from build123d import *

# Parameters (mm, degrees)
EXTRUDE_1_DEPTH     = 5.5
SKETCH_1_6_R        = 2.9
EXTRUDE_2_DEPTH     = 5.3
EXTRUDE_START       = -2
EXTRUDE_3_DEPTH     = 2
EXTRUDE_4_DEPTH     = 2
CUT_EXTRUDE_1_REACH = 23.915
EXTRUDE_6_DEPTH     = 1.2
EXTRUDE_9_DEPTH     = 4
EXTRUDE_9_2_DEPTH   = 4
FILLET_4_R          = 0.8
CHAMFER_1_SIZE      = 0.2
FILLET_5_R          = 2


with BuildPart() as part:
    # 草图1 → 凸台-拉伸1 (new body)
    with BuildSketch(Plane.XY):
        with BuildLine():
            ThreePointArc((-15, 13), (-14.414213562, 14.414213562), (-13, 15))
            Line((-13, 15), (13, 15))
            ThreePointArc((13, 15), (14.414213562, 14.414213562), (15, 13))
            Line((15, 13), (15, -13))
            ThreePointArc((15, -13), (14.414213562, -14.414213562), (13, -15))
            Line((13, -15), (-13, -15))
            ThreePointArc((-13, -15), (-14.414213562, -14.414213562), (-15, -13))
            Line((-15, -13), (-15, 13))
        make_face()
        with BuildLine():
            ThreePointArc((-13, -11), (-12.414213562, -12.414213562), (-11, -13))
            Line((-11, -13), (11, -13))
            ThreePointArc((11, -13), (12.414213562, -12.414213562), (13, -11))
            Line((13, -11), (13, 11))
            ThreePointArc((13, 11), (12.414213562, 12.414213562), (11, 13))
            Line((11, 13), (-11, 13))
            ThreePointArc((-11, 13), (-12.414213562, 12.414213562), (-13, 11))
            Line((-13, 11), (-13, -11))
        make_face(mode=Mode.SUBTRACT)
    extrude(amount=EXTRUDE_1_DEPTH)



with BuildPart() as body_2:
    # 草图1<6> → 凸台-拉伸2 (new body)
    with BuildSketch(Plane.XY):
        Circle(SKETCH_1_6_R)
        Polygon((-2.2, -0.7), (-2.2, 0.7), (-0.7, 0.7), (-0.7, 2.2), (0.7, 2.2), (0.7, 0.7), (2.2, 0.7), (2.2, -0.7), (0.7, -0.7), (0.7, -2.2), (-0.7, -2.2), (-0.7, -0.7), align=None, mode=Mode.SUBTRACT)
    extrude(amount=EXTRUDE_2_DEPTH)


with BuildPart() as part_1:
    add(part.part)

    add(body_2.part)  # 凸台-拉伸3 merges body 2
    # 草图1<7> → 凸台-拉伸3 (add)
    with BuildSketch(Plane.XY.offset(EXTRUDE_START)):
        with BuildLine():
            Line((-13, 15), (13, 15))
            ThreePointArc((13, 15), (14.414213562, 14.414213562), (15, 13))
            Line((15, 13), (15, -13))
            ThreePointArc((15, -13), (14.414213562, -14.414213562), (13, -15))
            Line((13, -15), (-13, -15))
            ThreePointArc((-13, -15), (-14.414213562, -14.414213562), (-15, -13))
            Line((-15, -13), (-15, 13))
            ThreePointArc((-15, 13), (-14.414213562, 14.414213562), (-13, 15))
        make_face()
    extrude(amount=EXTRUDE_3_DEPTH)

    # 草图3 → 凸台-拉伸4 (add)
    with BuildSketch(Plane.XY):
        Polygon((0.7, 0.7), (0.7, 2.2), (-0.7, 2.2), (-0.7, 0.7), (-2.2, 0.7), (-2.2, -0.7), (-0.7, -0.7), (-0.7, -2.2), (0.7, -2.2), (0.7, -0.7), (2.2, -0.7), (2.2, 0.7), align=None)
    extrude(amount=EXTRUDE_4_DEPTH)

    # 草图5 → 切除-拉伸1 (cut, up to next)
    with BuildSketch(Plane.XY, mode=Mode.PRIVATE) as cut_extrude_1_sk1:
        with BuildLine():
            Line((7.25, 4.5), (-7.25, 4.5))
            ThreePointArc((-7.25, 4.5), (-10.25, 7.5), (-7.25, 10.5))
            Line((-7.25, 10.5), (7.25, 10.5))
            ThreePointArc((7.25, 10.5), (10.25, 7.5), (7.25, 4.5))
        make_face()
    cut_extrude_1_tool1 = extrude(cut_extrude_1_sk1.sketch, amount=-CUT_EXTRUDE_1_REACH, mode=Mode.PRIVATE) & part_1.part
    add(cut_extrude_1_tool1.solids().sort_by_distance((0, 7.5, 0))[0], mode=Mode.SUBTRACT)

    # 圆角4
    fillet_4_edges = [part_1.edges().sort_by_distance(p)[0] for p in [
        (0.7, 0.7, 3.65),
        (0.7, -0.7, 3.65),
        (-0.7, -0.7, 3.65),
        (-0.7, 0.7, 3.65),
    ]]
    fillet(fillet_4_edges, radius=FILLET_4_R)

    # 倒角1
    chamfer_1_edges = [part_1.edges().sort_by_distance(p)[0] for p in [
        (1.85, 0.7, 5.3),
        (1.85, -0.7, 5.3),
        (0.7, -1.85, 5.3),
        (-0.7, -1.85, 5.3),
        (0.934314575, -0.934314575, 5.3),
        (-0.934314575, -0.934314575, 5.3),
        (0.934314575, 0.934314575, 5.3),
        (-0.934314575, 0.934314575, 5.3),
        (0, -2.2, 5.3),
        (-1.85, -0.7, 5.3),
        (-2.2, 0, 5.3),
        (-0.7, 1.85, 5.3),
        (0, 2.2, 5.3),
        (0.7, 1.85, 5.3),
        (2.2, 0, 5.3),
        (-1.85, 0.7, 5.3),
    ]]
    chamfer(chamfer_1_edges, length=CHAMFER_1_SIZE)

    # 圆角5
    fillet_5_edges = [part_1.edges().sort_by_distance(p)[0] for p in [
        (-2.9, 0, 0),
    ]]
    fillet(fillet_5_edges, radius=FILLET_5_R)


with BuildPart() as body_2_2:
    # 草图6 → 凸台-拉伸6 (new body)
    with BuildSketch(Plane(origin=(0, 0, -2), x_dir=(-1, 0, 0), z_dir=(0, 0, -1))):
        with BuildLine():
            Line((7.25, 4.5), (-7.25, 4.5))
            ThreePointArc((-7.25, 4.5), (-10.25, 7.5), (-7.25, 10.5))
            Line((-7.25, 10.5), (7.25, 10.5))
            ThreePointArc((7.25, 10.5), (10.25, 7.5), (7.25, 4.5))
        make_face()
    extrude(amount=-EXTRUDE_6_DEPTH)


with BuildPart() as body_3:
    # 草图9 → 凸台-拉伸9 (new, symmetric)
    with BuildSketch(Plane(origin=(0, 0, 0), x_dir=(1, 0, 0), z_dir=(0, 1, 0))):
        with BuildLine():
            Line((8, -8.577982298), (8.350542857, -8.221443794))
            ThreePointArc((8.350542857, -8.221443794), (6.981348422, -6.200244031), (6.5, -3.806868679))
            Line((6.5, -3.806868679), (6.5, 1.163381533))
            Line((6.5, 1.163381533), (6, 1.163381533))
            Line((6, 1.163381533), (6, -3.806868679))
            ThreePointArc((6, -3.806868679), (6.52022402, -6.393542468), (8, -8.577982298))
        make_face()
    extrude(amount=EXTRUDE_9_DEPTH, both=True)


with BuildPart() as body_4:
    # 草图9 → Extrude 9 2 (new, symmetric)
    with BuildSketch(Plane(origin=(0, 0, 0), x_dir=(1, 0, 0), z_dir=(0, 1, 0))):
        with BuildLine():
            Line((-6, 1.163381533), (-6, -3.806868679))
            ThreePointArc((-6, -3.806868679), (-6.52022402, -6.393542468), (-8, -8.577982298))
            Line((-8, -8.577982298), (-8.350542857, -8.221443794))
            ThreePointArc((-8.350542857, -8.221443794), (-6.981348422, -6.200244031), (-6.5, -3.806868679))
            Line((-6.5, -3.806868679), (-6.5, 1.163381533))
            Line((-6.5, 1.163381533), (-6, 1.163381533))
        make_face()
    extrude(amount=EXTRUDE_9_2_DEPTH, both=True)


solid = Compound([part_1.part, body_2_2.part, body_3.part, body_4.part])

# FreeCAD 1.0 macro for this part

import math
import FreeCAD as App
import Part
import Sketcher

V = App.Vector
Q = App.Units.Quantity


def edges_at(feature, points):
    """Names of the edges that pass closest to the given points."""
    edges = feature.Shape.Edges
    near = lambda p: min(range(len(edges)), key=lambda i: edges[i].distToShape(Part.Vertex(*p))[0])
    return sorted({f"Edge{near(p) + 1}" for p in points})

doc = App.newDocument("Part")
body = doc.addObject("PartDesign::Body", "Body")

# Sketch on XY plane
sketch1 = body.newObject("Sketcher::SketchObject", "Sketch")
sketch1.AttachmentSupport = (doc.getObject("XY_Plane"), [""])
sketch1.MapMode = "FlatFace"
sketch1.addGeometry(Part.ArcOfCircle(Part.Circle(V(-13, 13, 0), V(0, 0, 1), 2), math.radians(90), math.radians(180)), False)
sketch1.addGeometry(Part.LineSegment(V(-15, 13, 0), V(-15, -13, 0)), False)
sketch1.addGeometry(Part.ArcOfCircle(Part.Circle(V(-13, -13, 0), V(0, 0, 1), 2), math.radians(-180), math.radians(-90)), False)
sketch1.addGeometry(Part.LineSegment(V(-13, -15, 0), V(13, -15, 0)), False)
sketch1.addGeometry(Part.ArcOfCircle(Part.Circle(V(13, -13, 0), V(0, 0, 1), 2), math.radians(-90), math.radians(0)), False)
sketch1.addGeometry(Part.LineSegment(V(15, -13, 0), V(15, 13, 0)), False)
sketch1.addGeometry(Part.ArcOfCircle(Part.Circle(V(13, 13, 0), V(0, 0, 1), 2), math.radians(0), math.radians(90)), False)
sketch1.addGeometry(Part.LineSegment(V(13, 15, 0), V(-13, 15, 0)), False)
sketch1.addGeometry(Part.LineSegment(V(-13, -11, 0), V(-13, 11, 0)), False)
sketch1.addGeometry(Part.ArcOfCircle(Part.Circle(V(-11, 11, 0), V(0, 0, 1), 2), math.radians(90), math.radians(180)), False)
sketch1.addGeometry(Part.LineSegment(V(-11, 13, 0), V(11, 13, 0)), False)
sketch1.addGeometry(Part.ArcOfCircle(Part.Circle(V(11, 11, 0), V(0, 0, 1), 2), math.radians(0), math.radians(90)), False)
sketch1.addGeometry(Part.LineSegment(V(13, 11, 0), V(13, -11, 0)), False)
sketch1.addGeometry(Part.ArcOfCircle(Part.Circle(V(11, -11, 0), V(0, 0, 1), 2), math.radians(-90), math.radians(0)), False)
sketch1.addGeometry(Part.LineSegment(V(11, -13, 0), V(-11, -13, 0)), False)
sketch1.addGeometry(Part.ArcOfCircle(Part.Circle(V(-11, -11, 0), V(0, 0, 1), 2), math.radians(-180), math.radians(-90)), False)
sketch1.addConstraint(Sketcher.Constraint("Tangent", 0, 2, 1, 1))
sketch1.addConstraint(Sketcher.Constraint("Tangent", 1, 2, 2, 1))
sketch1.addConstraint(Sketcher.Constraint("Tangent", 2, 2, 3, 1))
sketch1.addConstraint(Sketcher.Constraint("Tangent", 3, 2, 4, 1))
sketch1.addConstraint(Sketcher.Constraint("Tangent", 4, 2, 5, 1))
sketch1.addConstraint(Sketcher.Constraint("Tangent", 5, 2, 6, 1))
sketch1.addConstraint(Sketcher.Constraint("Tangent", 6, 2, 7, 1))
sketch1.addConstraint(Sketcher.Constraint("Tangent", 7, 2, 0, 1))
sketch1.addConstraint(Sketcher.Constraint("Tangent", 8, 2, 9, 2))
sketch1.addConstraint(Sketcher.Constraint("Tangent", 9, 1, 10, 1))
sketch1.addConstraint(Sketcher.Constraint("Tangent", 10, 2, 11, 2))
sketch1.addConstraint(Sketcher.Constraint("Tangent", 11, 1, 12, 1))
sketch1.addConstraint(Sketcher.Constraint("Tangent", 12, 2, 13, 2))
sketch1.addConstraint(Sketcher.Constraint("Tangent", 13, 1, 14, 1))
sketch1.addConstraint(Sketcher.Constraint("Tangent", 14, 2, 15, 2))
sketch1.addConstraint(Sketcher.Constraint("Tangent", 15, 1, 8, 1))
sketch1.addConstraint(Sketcher.Constraint("Vertical", 1))
sketch1.addConstraint(Sketcher.Constraint("Horizontal", 3))
sketch1.addConstraint(Sketcher.Constraint("Vertical", 5))
sketch1.addConstraint(Sketcher.Constraint("Horizontal", 7))
sketch1.addConstraint(Sketcher.Constraint("Vertical", 8))
sketch1.addConstraint(Sketcher.Constraint("Horizontal", 10))
sketch1.addConstraint(Sketcher.Constraint("Vertical", 12))
sketch1.addConstraint(Sketcher.Constraint("Horizontal", 14))
sketch1.addConstraint(Sketcher.Constraint("Equal", 0, 2))
sketch1.addConstraint(Sketcher.Constraint("Equal", 2, 4))
sketch1.addConstraint(Sketcher.Constraint("Equal", 4, 6))
sketch1.addConstraint(Sketcher.Constraint("Equal", 6, 9))
sketch1.addConstraint(Sketcher.Constraint("Equal", 9, 11))
sketch1.addConstraint(Sketcher.Constraint("Equal", 11, 13))
sketch1.addConstraint(Sketcher.Constraint("Equal", 13, 15))
sketch1.addConstraint(Sketcher.Constraint("Symmetric", 0, 3, 4, 3, -1, 1))
sketch1.addConstraint(Sketcher.Constraint("Symmetric", 9, 3, 13, 3, -1, 1))
sketch1.addConstraint(Sketcher.Constraint("Horizontal", 5, 2, 9, 1))
sketch1.addConstraint(Sketcher.Constraint("Vertical", 7, 2, 8, 2))
sketch1.addConstraint(Sketcher.Constraint("Equal", 7, 1))
sketch1.addConstraint(Sketcher.Constraint("Radius", 0, Q("2 mm")))
sketch1.addConstraint(Sketcher.Constraint("DistanceX", 3, 1, 3, 2, Q("26 mm")))
pad1 = body.newObject("PartDesign::Pad", "Pad")
pad1.Profile = sketch1
pad1.Length = 5.5
body2 = doc.addObject("PartDesign::Body", "Body001")

# Sketch on XY plane
sketch2 = body2.newObject("Sketcher::SketchObject", "Sketch001")
sketch2.AttachmentSupport = (doc.getObject("XY_Plane001"), [""])
sketch2.MapMode = "FlatFace"
sketch2.addGeometry(Part.Circle(V(0, 0, 0), V(0, 0, 1), 2.9), False)
sketch2.addGeometry(Part.LineSegment(V(-0.7, -0.7, 0), V(-2.2, -0.7, 0)), False)
sketch2.addGeometry(Part.LineSegment(V(-2.2, -0.7, 0), V(-2.2, 0.7, 0)), False)
sketch2.addGeometry(Part.LineSegment(V(-2.2, 0.7, 0), V(-0.7, 0.7, 0)), False)
sketch2.addGeometry(Part.LineSegment(V(-0.7, 0.7, 0), V(-0.7, 2.2, 0)), False)
sketch2.addGeometry(Part.LineSegment(V(-0.7, 2.2, 0), V(0.7, 2.2, 0)), False)
sketch2.addGeometry(Part.LineSegment(V(0.7, 2.2, 0), V(0.7, 0.7, 0)), False)
sketch2.addGeometry(Part.LineSegment(V(0.7, 0.7, 0), V(2.2, 0.7, 0)), False)
sketch2.addGeometry(Part.LineSegment(V(2.2, 0.7, 0), V(2.2, -0.7, 0)), False)
sketch2.addGeometry(Part.LineSegment(V(2.2, -0.7, 0), V(0.7, -0.7, 0)), False)
sketch2.addGeometry(Part.LineSegment(V(0.7, -0.7, 0), V(0.7, -2.2, 0)), False)
sketch2.addGeometry(Part.LineSegment(V(0.7, -2.2, 0), V(-0.7, -2.2, 0)), False)
sketch2.addGeometry(Part.LineSegment(V(-0.7, -2.2, 0), V(-0.7, -0.7, 0)), False)
sketch2.addConstraint(Sketcher.Constraint("Coincident", 1, 2, 2, 1))
sketch2.addConstraint(Sketcher.Constraint("Coincident", 2, 2, 3, 1))
sketch2.addConstraint(Sketcher.Constraint("Coincident", 3, 2, 4, 1))
sketch2.addConstraint(Sketcher.Constraint("Coincident", 4, 2, 5, 1))
sketch2.addConstraint(Sketcher.Constraint("Coincident", 5, 2, 6, 1))
sketch2.addConstraint(Sketcher.Constraint("Coincident", 6, 2, 7, 1))
sketch2.addConstraint(Sketcher.Constraint("Coincident", 7, 2, 8, 1))
sketch2.addConstraint(Sketcher.Constraint("Coincident", 8, 2, 9, 1))
sketch2.addConstraint(Sketcher.Constraint("Coincident", 9, 2, 10, 1))
sketch2.addConstraint(Sketcher.Constraint("Coincident", 10, 2, 11, 1))
sketch2.addConstraint(Sketcher.Constraint("Coincident", 11, 2, 12, 1))
sketch2.addConstraint(Sketcher.Constraint("Coincident", 12, 2, 1, 1))
sketch2.addConstraint(Sketcher.Constraint("Horizontal", 1))
sketch2.addConstraint(Sketcher.Constraint("Vertical", 2))
sketch2.addConstraint(Sketcher.Constraint("Horizontal", 3))
sketch2.addConstraint(Sketcher.Constraint("Vertical", 4))
sketch2.addConstraint(Sketcher.Constraint("Horizontal", 5))
sketch2.addConstraint(Sketcher.Constraint("Vertical", 6))
sketch2.addConstraint(Sketcher.Constraint("Horizontal", 7))
sketch2.addConstraint(Sketcher.Constraint("Vertical", 8))
sketch2.addConstraint(Sketcher.Constraint("Horizontal", 9))
sketch2.addConstraint(Sketcher.Constraint("Vertical", 10))
sketch2.addConstraint(Sketcher.Constraint("Horizontal", 11))
sketch2.addConstraint(Sketcher.Constraint("Vertical", 12))
sketch2.addConstraint(Sketcher.Constraint("Coincident", 0, 3, -1, 1))
sketch2.addConstraint(Sketcher.Constraint("Symmetric", 1, 2, 7, 2, -1, 1))
sketch2.addConstraint(Sketcher.Constraint("Symmetric", 3, 2, 9, 2, -1, 1))
sketch2.addConstraint(Sketcher.Constraint("Symmetric", 5, 2, 11, 2, -1, 1))
sketch2.addConstraint(Sketcher.Constraint("Symmetric", 3, 2, 6, 2, -2))
sketch2.addConstraint(Sketcher.Constraint("Equal", 11, 2))
sketch2.addConstraint(Sketcher.Constraint("Equal", 9, 4))
sketch2.addConstraint(Sketcher.Constraint("Diameter", 0, Q("5.8 mm")))
sketch2.addConstraint(Sketcher.Constraint("DistanceX", 1, 2, 1, 1, Q("1.5 mm")))
sketch2.addConstraint(Sketcher.Constraint("DistanceX", 5, 1, 5, 2, Q("1.4 mm")))
pad2 = body2.newObject("PartDesign::Pad", "Pad001")
pad2.Profile = sketch2
pad2.Length = 5.3
body.AllowCompound = True
doc.recompute()

boolean = body.newObject("PartDesign::Boolean", "Boolean")
boolean.Type = "Fuse"
boolean.addObjects([body2])

# Sketch on XY plane
sketch3 = body.newObject("Sketcher::SketchObject", "Sketch002")
sketch3.AttachmentSupport = (doc.getObject("XY_Plane"), [""])
sketch3.MapMode = "FlatFace"
sketch3.AttachmentOffset = App.Placement(V(0, 0, -2), App.Rotation())
sketch3.addGeometry(Part.LineSegment(V(13, 15, 0), V(-13, 15, 0)), False)
sketch3.addGeometry(Part.ArcOfCircle(Part.Circle(V(-13, 13, 0), V(0, 0, 1), 2), math.radians(90), math.radians(180)), False)
sketch3.addGeometry(Part.LineSegment(V(-15, 13, 0), V(-15, -13, 0)), False)
sketch3.addGeometry(Part.ArcOfCircle(Part.Circle(V(-13, -13, 0), V(0, 0, 1), 2), math.radians(-180), math.radians(-90)), False)
sketch3.addGeometry(Part.LineSegment(V(-13, -15, 0), V(13, -15, 0)), False)
sketch3.addGeometry(Part.ArcOfCircle(Part.Circle(V(13, -13, 0), V(0, 0, 1), 2), math.radians(-90), math.radians(0)), False)
sketch3.addGeometry(Part.LineSegment(V(15, -13, 0), V(15, 13, 0)), False)
sketch3.addGeometry(Part.ArcOfCircle(Part.Circle(V(13, 13, 0), V(0, 0, 1), 2), math.radians(0), math.radians(90)), False)
sketch3.addConstraint(Sketcher.Constraint("Tangent", 0, 2, 1, 1))
sketch3.addConstraint(Sketcher.Constraint("Tangent", 1, 2, 2, 1))
sketch3.addConstraint(Sketcher.Constraint("Tangent", 2, 2, 3, 1))
sketch3.addConstraint(Sketcher.Constraint("Tangent", 3, 2, 4, 1))
sketch3.addConstraint(Sketcher.Constraint("Tangent", 4, 2, 5, 1))
sketch3.addConstraint(Sketcher.Constraint("Tangent", 5, 2, 6, 1))
sketch3.addConstraint(Sketcher.Constraint("Tangent", 6, 2, 7, 1))
sketch3.addConstraint(Sketcher.Constraint("Tangent", 7, 2, 0, 1))
sketch3.addConstraint(Sketcher.Constraint("Horizontal", 0))
sketch3.addConstraint(Sketcher.Constraint("Vertical", 2))
sketch3.addConstraint(Sketcher.Constraint("Horizontal", 4))
sketch3.addConstraint(Sketcher.Constraint("Vertical", 6))
sketch3.addConstraint(Sketcher.Constraint("Equal", 1, 3))
sketch3.addConstraint(Sketcher.Constraint("Equal", 3, 5))
sketch3.addConstraint(Sketcher.Constraint("Equal", 5, 7))
sketch3.addConstraint(Sketcher.Constraint("Symmetric", 1, 3, 5, 3, -1, 1))
sketch3.addConstraint(Sketcher.Constraint("Equal", 4, 2))
sketch3.addConstraint(Sketcher.Constraint("Radius", 1, Q("2 mm")))
sketch3.addConstraint(Sketcher.Constraint("DistanceX", 0, 2, 0, 1, Q("26 mm")))
pad3 = body.newObject("PartDesign::Pad", "Pad002")
pad3.Profile = sketch3
pad3.Length = 2

# Sketch on XY plane
sketch4 = body.newObject("Sketcher::SketchObject", "Sketch003")
sketch4.AttachmentSupport = (doc.getObject("XY_Plane"), [""])
sketch4.MapMode = "FlatFace"
sketch4.addGeometry(Part.LineSegment(V(0.7, 0.7, 0), V(0.7, 2.2, 0)), False)
sketch4.addGeometry(Part.LineSegment(V(0.7, 2.2, 0), V(-0.7, 2.2, 0)), False)
sketch4.addGeometry(Part.LineSegment(V(-0.7, 2.2, 0), V(-0.7, 0.7, 0)), False)
sketch4.addGeometry(Part.LineSegment(V(-0.7, 0.7, 0), V(-2.2, 0.7, 0)), False)
sketch4.addGeometry(Part.LineSegment(V(-2.2, 0.7, 0), V(-2.2, -0.7, 0)), False)
sketch4.addGeometry(Part.LineSegment(V(-2.2, -0.7, 0), V(-0.7, -0.7, 0)), False)
sketch4.addGeometry(Part.LineSegment(V(-0.7, -0.7, 0), V(-0.7, -2.2, 0)), False)
sketch4.addGeometry(Part.LineSegment(V(-0.7, -2.2, 0), V(0.7, -2.2, 0)), False)
sketch4.addGeometry(Part.LineSegment(V(0.7, -2.2, 0), V(0.7, -0.7, 0)), False)
sketch4.addGeometry(Part.LineSegment(V(0.7, -0.7, 0), V(2.2, -0.7, 0)), False)
sketch4.addGeometry(Part.LineSegment(V(2.2, -0.7, 0), V(2.2, 0.7, 0)), False)
sketch4.addGeometry(Part.LineSegment(V(2.2, 0.7, 0), V(0.7, 0.7, 0)), False)
sketch4.addConstraint(Sketcher.Constraint("Coincident", 0, 2, 1, 1))
sketch4.addConstraint(Sketcher.Constraint("Coincident", 1, 2, 2, 1))
sketch4.addConstraint(Sketcher.Constraint("Coincident", 2, 2, 3, 1))
sketch4.addConstraint(Sketcher.Constraint("Coincident", 3, 2, 4, 1))
sketch4.addConstraint(Sketcher.Constraint("Coincident", 4, 2, 5, 1))
sketch4.addConstraint(Sketcher.Constraint("Coincident", 5, 2, 6, 1))
sketch4.addConstraint(Sketcher.Constraint("Coincident", 6, 2, 7, 1))
sketch4.addConstraint(Sketcher.Constraint("Coincident", 7, 2, 8, 1))
sketch4.addConstraint(Sketcher.Constraint("Coincident", 8, 2, 9, 1))
sketch4.addConstraint(Sketcher.Constraint("Coincident", 9, 2, 10, 1))
sketch4.addConstraint(Sketcher.Constraint("Coincident", 10, 2, 11, 1))
sketch4.addConstraint(Sketcher.Constraint("Coincident", 11, 2, 0, 1))
sketch4.addConstraint(Sketcher.Constraint("Vertical", 0))
sketch4.addConstraint(Sketcher.Constraint("Horizontal", 1))
sketch4.addConstraint(Sketcher.Constraint("Vertical", 2))
sketch4.addConstraint(Sketcher.Constraint("Horizontal", 3))
sketch4.addConstraint(Sketcher.Constraint("Vertical", 4))
sketch4.addConstraint(Sketcher.Constraint("Horizontal", 5))
sketch4.addConstraint(Sketcher.Constraint("Vertical", 6))
sketch4.addConstraint(Sketcher.Constraint("Horizontal", 7))
sketch4.addConstraint(Sketcher.Constraint("Vertical", 8))
sketch4.addConstraint(Sketcher.Constraint("Horizontal", 9))
sketch4.addConstraint(Sketcher.Constraint("Vertical", 10))
sketch4.addConstraint(Sketcher.Constraint("Horizontal", 11))
sketch4.addConstraint(Sketcher.Constraint("Symmetric", 0, 2, 6, 2, -1, 1))
sketch4.addConstraint(Sketcher.Constraint("Symmetric", 2, 2, 8, 2, -1, 1))
sketch4.addConstraint(Sketcher.Constraint("Symmetric", 4, 2, 10, 2, -1, 1))
sketch4.addConstraint(Sketcher.Constraint("Symmetric", 5, 2, 8, 2, -2))
sketch4.addConstraint(Sketcher.Constraint("Equal", 11, 0))
sketch4.addConstraint(Sketcher.Constraint("Equal", 7, 4))
sketch4.addConstraint(Sketcher.Constraint("DistanceX", 1, 2, 1, 1, Q("1.4 mm")))
sketch4.addConstraint(Sketcher.Constraint("DistanceX", 3, 2, 3, 1, Q("1.5 mm")))
pad4 = body.newObject("PartDesign::Pad", "Pad003")
pad4.Profile = sketch4
pad4.Length = 2

# Sketch on XY plane
sketch5 = body.newObject("Sketcher::SketchObject", "Sketch004")
sketch5.AttachmentSupport = (doc.getObject("XY_Plane"), [""])
sketch5.MapMode = "FlatFace"
sketch5.addGeometry(Part.LineSegment(V(-7.25, 4.5, 0), V(7.25, 4.5, 0)), False)
sketch5.addGeometry(Part.ArcOfCircle(Part.Circle(V(7.25, 7.5, 0), V(0, 0, 1), 3), math.radians(-90), math.radians(90)), False)
sketch5.addGeometry(Part.LineSegment(V(7.25, 10.5, 0), V(-7.25, 10.5, 0)), False)
sketch5.addGeometry(Part.ArcOfCircle(Part.Circle(V(-7.25, 7.5, 0), V(0, 0, 1), 3), math.radians(90), math.radians(270)), False)
sketch5.addConstraint(Sketcher.Constraint("Tangent", 0, 2, 1, 1))
sketch5.addConstraint(Sketcher.Constraint("Tangent", 1, 2, 2, 1))
sketch5.addConstraint(Sketcher.Constraint("Tangent", 2, 2, 3, 1))
sketch5.addConstraint(Sketcher.Constraint("Tangent", 3, 2, 0, 1))
sketch5.addConstraint(Sketcher.Constraint("Horizontal", 0))
sketch5.addConstraint(Sketcher.Constraint("Horizontal", 2))
sketch5.addConstraint(Sketcher.Constraint("Radius", 1, Q("3 mm")))
sketch5.addConstraint(Sketcher.Constraint("DistanceX", 0, 1, 0, 2, Q("14.5 mm")))
sketch5.addConstraint(Sketcher.Constraint("DistanceY", -1, 1, 1, 3, Q("7.5 mm")))
sketch5.addConstraint(Sketcher.Constraint("DistanceX", -1, 1, 1, 3, Q("7.25 mm")))
pocket1 = body.newObject("PartDesign::Pocket", "Pocket")
pocket1.Profile = sketch5
pocket1.Type = "UpToFirst"
doc.recompute()

fillet = body.newObject("PartDesign::Fillet", "Fillet")
fillet.Base = (pocket1, edges_at(pocket1, [
    (0.7, 0.7, 3.65),
    (0.7, -0.7, 3.65),
    (-0.7, -0.7, 3.65),
    (-0.7, 0.7, 3.65),
]))
fillet.Radius = 0.8
doc.recompute()

chamfer = body.newObject("PartDesign::Chamfer", "Chamfer")
chamfer.Base = (fillet, edges_at(fillet, [
    (1.85, 0.7, 5.3),
    (1.85, -0.7, 5.3),
    (0.7, -1.85, 5.3),
    (-0.7, -1.85, 5.3),
    (0.934, -0.934, 5.3),
    (-0.934, -0.934, 5.3),
    (0.934, 0.934, 5.3),
    (-0.934, 0.934, 5.3),
    (0, -2.2, 5.3),
    (-1.85, -0.7, 5.3),
    (-2.2, 0, 5.3),
    (-0.7, 1.85, 5.3),
    (0, 2.2, 5.3),
    (0.7, 1.85, 5.3),
    (2.2, 0, 5.3),
    (-1.85, 0.7, 5.3),
]))
chamfer.Size = 0.2
doc.recompute()

fillet2 = body.newObject("PartDesign::Fillet", "Fillet001")
fillet2.Base = (chamfer, edges_at(chamfer, [(-2.9, 0, 0)]))
fillet2.Radius = 2
body3 = doc.addObject("PartDesign::Body", "Body002")

# Sketch on XY plane
sketch6 = body3.newObject("Sketcher::SketchObject", "Sketch005")
sketch6.AttachmentSupport = (doc.getObject("XY_Plane002"), [""])
sketch6.MapMode = "FlatFace"
sketch6.AttachmentOffset = App.Placement(V(0, 0, -2), App.Rotation())
sketch6.addGeometry(Part.LineSegment(V(7.25, 4.5, 0), V(-7.25, 4.5, 0)), False)
sketch6.addGeometry(Part.ArcOfCircle(Part.Circle(V(-7.25, 7.5, 0), V(0, 0, 1), 3), math.radians(90), math.radians(270)), False)
sketch6.addGeometry(Part.LineSegment(V(-7.25, 10.5, 0), V(7.25, 10.5, 0)), False)
sketch6.addGeometry(Part.ArcOfCircle(Part.Circle(V(7.25, 7.5, 0), V(0, 0, 1), 3), math.radians(-90), math.radians(90)), False)
sketch6.addConstraint(Sketcher.Constraint("Tangent", 0, 2, 1, 2))
sketch6.addConstraint(Sketcher.Constraint("Tangent", 1, 1, 2, 1))
sketch6.addConstraint(Sketcher.Constraint("Tangent", 2, 2, 3, 2))
sketch6.addConstraint(Sketcher.Constraint("Tangent", 3, 1, 0, 1))
sketch6.addConstraint(Sketcher.Constraint("Horizontal", 0))
sketch6.addConstraint(Sketcher.Constraint("Horizontal", 2))
sketch6.addConstraint(Sketcher.Constraint("Radius", 1, Q("3 mm")))
sketch6.addConstraint(Sketcher.Constraint("DistanceX", 0, 2, 0, 1, Q("14.5 mm")))
sketch6.addConstraint(Sketcher.Constraint("DistanceY", -1, 1, 1, 3, Q("7.5 mm")))
sketch6.addConstraint(Sketcher.Constraint("DistanceX", 1, 3, -1, 1, Q("7.25 mm")))
pad5 = body3.newObject("PartDesign::Pad", "Pad004")
pad5.Profile = sketch6
pad5.Length = 1.2
body4 = doc.addObject("PartDesign::Body", "Body003")

# Sketch on XZ plane
sketch7 = body4.newObject("Sketcher::SketchObject", "Sketch006")
sketch7.AttachmentSupport = (doc.getObject("XZ_Plane003"), [""])
sketch7.MapMode = "FlatFace"
sketch7.addGeometry(Part.LineSegment(V(8, 8.577982, 0), V(8.350543, 8.221444, 0)), False)
sketch7.addGeometry(Part.ArcOfCircle(Part.Circle(V(12.690881, 3.806869, 0), V(0, 0, 1), 6.190881), math.radians(134.514176), math.radians(180)), False)
sketch7.addGeometry(Part.LineSegment(V(6.5, 3.806869, 0), V(6.5, -1.163382, 0)), False)
sketch7.addGeometry(Part.LineSegment(V(6.5, -1.163382, 0), V(6, -1.163382, 0)), False)
sketch7.addGeometry(Part.LineSegment(V(6, -1.163382, 0), V(6, 3.806869, 0)), False)
sketch7.addGeometry(Part.ArcOfCircle(Part.Circle(V(12.690881, 3.806869, 0), V(0, 0, 1), 6.690881), math.radians(134.514176), math.radians(180)), False)
sketch7.addConstraint(Sketcher.Constraint("Coincident", 0, 2, 1, 1))
sketch7.addConstraint(Sketcher.Constraint("Tangent", 1, 2, 2, 1))
sketch7.addConstraint(Sketcher.Constraint("Coincident", 2, 2, 3, 1))
sketch7.addConstraint(Sketcher.Constraint("Coincident", 3, 2, 4, 1))
sketch7.addConstraint(Sketcher.Constraint("Tangent", 4, 2, 5, 2))
sketch7.addConstraint(Sketcher.Constraint("Coincident", 5, 1, 0, 1))
sketch7.addConstraint(Sketcher.Constraint("Vertical", 2))
sketch7.addConstraint(Sketcher.Constraint("Horizontal", 3))
sketch7.addConstraint(Sketcher.Constraint("Vertical", 4))
sketch7.addConstraint(Sketcher.Constraint("Coincident", 5, 3, 1, 3))
sketch7.addConstraint(Sketcher.Constraint("DistanceX", 3, 2, 3, 1, Q("0.5 mm")))
sketch7.addConstraint(Sketcher.Constraint("DistanceX", -1, 1, 3, 2, Q("6 mm")))
sketch7.addConstraint(Sketcher.Constraint("DistanceX", -1, 1, 5, 1, Q("8 mm")))
sketch7.addConstraint(Sketcher.Constraint("Radius", 1, Q("6.190881 mm")))
sketch7.addConstraint(Sketcher.Constraint("DistanceY", 2, 2, 2, 1, Q("4.97025 mm")))
sketch7.addConstraint(Sketcher.Constraint("DistanceY", -1, 1, 1, 3, Q("3.806869 mm")))
sketch7.addConstraint(Sketcher.Constraint("DistanceX", 0, 2, 5, 3, Q("4.340338 mm")))
pad6 = body4.newObject("PartDesign::Pad", "Pad005")
pad6.Profile = sketch7
pad6.Length = 8
pad6.Midplane = True
body5 = doc.addObject("PartDesign::Body", "Body004")

# Sketch on XZ plane
sketch8 = body5.newObject("Sketcher::SketchObject", "Sketch007")
sketch8.AttachmentSupport = (doc.getObject("XZ_Plane004"), [""])
sketch8.MapMode = "FlatFace"
sketch8.addGeometry(Part.LineSegment(V(-6, 3.806869, 0), V(-6, -1.163382, 0)), False)
sketch8.addGeometry(Part.LineSegment(V(-6, -1.163382, 0), V(-6.5, -1.163382, 0)), False)
sketch8.addGeometry(Part.LineSegment(V(-6.5, -1.163382, 0), V(-6.5, 3.806869, 0)), False)
sketch8.addGeometry(Part.ArcOfCircle(Part.Circle(V(-12.690881, 3.806869, 0), V(0, 0, 1), 6.190881), math.radians(0), math.radians(45.485824)), False)
sketch8.addGeometry(Part.LineSegment(V(-8.350543, 8.221444, 0), V(-8, 8.577982, 0)), False)
sketch8.addGeometry(Part.ArcOfCircle(Part.Circle(V(-12.690881, 3.806869, 0), V(0, 0, 1), 6.690881), math.radians(0), math.radians(45.485824)), False)
sketch8.addConstraint(Sketcher.Constraint("Coincident", 0, 2, 1, 1))
sketch8.addConstraint(Sketcher.Constraint("Coincident", 1, 2, 2, 1))
sketch8.addConstraint(Sketcher.Constraint("Tangent", 2, 2, 3, 1))
sketch8.addConstraint(Sketcher.Constraint("Coincident", 3, 2, 4, 1))
sketch8.addConstraint(Sketcher.Constraint("Coincident", 4, 2, 5, 2))
sketch8.addConstraint(Sketcher.Constraint("Tangent", 5, 1, 0, 1))
sketch8.addConstraint(Sketcher.Constraint("Vertical", 0))
sketch8.addConstraint(Sketcher.Constraint("Horizontal", 1))
sketch8.addConstraint(Sketcher.Constraint("Vertical", 2))
sketch8.addConstraint(Sketcher.Constraint("Coincident", 5, 3, 3, 3))
sketch8.addConstraint(Sketcher.Constraint("DistanceX", 1, 2, 1, 1, Q("0.5 mm")))
sketch8.addConstraint(Sketcher.Constraint("DistanceX", 0, 2, -1, 1, Q("6 mm")))
sketch8.addConstraint(Sketcher.Constraint("DistanceX", 4, 2, -1, 1, Q("8 mm")))
sketch8.addConstraint(Sketcher.Constraint("Radius", 3, Q("6.190881 mm")))
sketch8.addConstraint(Sketcher.Constraint("DistanceY", 0, 2, 0, 1, Q("4.97025 mm")))
sketch8.addConstraint(Sketcher.Constraint("DistanceY", -1, 1, 3, 3, Q("3.806869 mm")))
sketch8.addConstraint(Sketcher.Constraint("DistanceX", 5, 3, 3, 2, Q("4.340338 mm")))
pad7 = body5.newObject("PartDesign::Pad", "Pad006")
pad7.Profile = sketch8
pad7.Length = 8
pad7.Midplane = True

doc.recompute()
